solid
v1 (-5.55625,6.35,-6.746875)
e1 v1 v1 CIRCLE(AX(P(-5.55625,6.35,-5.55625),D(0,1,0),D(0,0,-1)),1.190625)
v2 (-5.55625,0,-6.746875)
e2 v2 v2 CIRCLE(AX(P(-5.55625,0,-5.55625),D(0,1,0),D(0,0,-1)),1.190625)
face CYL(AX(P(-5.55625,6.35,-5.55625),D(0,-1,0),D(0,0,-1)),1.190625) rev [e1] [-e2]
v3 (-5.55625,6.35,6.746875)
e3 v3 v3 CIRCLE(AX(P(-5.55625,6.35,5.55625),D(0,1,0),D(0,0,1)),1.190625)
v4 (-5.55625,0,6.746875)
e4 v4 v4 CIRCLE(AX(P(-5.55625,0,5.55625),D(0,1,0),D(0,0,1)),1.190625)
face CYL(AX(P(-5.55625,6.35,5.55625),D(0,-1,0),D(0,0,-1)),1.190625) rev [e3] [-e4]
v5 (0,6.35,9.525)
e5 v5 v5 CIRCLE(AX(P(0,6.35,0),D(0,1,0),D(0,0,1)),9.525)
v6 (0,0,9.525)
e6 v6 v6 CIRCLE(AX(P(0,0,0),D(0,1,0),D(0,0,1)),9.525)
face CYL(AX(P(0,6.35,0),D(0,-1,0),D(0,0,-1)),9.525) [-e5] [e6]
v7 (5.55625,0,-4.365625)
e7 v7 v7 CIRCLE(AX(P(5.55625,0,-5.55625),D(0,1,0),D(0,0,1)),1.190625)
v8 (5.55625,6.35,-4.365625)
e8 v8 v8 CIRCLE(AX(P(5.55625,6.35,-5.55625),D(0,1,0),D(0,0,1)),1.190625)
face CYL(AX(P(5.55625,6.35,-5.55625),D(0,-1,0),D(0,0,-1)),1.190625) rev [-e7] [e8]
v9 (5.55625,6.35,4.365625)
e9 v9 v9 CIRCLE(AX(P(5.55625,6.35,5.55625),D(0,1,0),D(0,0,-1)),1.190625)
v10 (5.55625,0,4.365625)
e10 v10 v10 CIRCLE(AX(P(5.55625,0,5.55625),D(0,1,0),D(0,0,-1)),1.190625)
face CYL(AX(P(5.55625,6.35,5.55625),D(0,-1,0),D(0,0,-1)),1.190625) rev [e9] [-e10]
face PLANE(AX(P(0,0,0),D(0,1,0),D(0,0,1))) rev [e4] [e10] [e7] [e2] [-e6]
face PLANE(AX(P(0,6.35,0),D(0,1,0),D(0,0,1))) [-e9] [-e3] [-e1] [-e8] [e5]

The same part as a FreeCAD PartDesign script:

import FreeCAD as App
import Part
import Sketcher
from FreeCAD import Vector
Q = App.Units.Quantity

doc = App.newDocument("Part")
params = doc.addObject("Spreadsheet::Sheet", "Params")
for row, (alias, value) in enumerate([
    ("sketch1_diameter", "0.75 in"),
    ("sketch1_diameter2", "0.09375 in"),
    ("pad1_length", "0.25 in"),
], start=1):
    params.set(f"A{row}", alias)
    params.set(f"B{row}", "=" + value)
    params.setAlias(f"B{row}", alias)

body = doc.addObject("PartDesign::Body", "Body")

# Sketch on XZ plane
sketch1 = doc.addObject("Sketcher::SketchObject", "Sketch")
body.addObject(sketch1)
sketch1.AttachmentSupport = (doc.XZ_Plane, [""])
sketch1.MapMode = "FlatFace"
sketch1.addGeometry([
    Part.Circle(Vector(0, 0, 0), Vector(0, 0, 1), 9.5),  # 0
    Part.Circle(Vector(-5.6, -5.6, 0), Vector(0, 0, 1), 1.2),  # 1
    Part.Circle(Vector(-5.6, 5.6, 0), Vector(0, 0, 1), 1.2),  # 2
    Part.Circle(Vector(5.6, -5.6, 0), Vector(0, 0, 1), 1.2),  # 3
    Part.Circle(Vector(5.6, 5.6, 0), Vector(0, 0, 1), 1.2),  # 4
], False)
sketch1.addConstraint([
    Sketcher.Constraint("Coincident", 0, 3, -1, 1),
    Sketcher.Constraint("Equal", 1, 2),
    Sketcher.Constraint("Equal", 2, 3),
    Sketcher.Constraint("Equal", 3, 4),
    Sketcher.Constraint("Symmetric", 2, 3, 3, 3, -1, 1),
    Sketcher.Constraint("Symmetric", 1, 3, 4, 3, -1, 1),
    Sketcher.Constraint("Symmetric", 1, 3, 3, 3, -2),
    Sketcher.Constraint("Diameter", 0, Q("0.75 in")),
    Sketcher.Constraint("Diameter", 1, Q("0.09375 in")),
    Sketcher.Constraint("DistanceX", 1, 3, -1, 1, Q("0.21875 in")),
    Sketcher.Constraint("DistanceY", 1, 3, -1, 1, Q("0.21875 in")),
])
sketch1.setExpression("Constraints[7]", "Params.sketch1_diameter")
sketch1.setExpression("Constraints[8]", "Params.sketch1_diameter2")
pad1 = doc.addObject("PartDesign::Pad", "Pad")
body.addObject(pad1)
pad1.Profile = sketch1
pad1.setExpression("Length", "Params.pad1_length")
pad1.Reversed = True

doc.recompute()
